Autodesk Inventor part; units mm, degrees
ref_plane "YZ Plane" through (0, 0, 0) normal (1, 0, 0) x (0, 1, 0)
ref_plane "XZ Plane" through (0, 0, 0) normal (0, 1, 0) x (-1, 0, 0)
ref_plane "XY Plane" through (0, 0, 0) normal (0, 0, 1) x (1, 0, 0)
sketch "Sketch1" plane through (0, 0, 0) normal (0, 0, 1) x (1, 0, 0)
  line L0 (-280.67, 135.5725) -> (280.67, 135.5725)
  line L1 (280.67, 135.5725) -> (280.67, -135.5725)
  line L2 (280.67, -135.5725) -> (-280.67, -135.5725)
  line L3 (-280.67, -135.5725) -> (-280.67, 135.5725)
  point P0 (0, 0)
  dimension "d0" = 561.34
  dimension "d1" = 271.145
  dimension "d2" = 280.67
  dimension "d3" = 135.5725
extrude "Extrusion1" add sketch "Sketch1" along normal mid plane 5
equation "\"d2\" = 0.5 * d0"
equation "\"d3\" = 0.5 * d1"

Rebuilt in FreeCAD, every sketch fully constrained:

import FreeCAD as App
import Part
import Sketcher
from FreeCAD import Vector
Q = App.Units.Quantity

doc = App.newDocument("Part")
params = doc.addObject("Spreadsheet::Sheet", "Params")
for row, (alias, value) in enumerate([
    ("sketch1_width", "22.1 in"),
    ("sketch1_height", "10.675 in"),
    ("pad1_length", "5 mm"),
], start=1):
    params.set(f"A{row}", alias)
    params.set(f"B{row}", "=" + value)
    params.setAlias(f"B{row}", alias)

body = doc.addObject("PartDesign::Body", "Body")

sketch1 = doc.addObject("Sketcher::SketchObject", "Sketch")
body.addObject(sketch1)
sketch1.AttachmentSupport = (doc.XY_Plane, [""])
sketch1.MapMode = "FlatFace"
sketch1.addGeometry(Part.LineSegment(Vector(281, 136, 0), Vector(-281, 136, 0)), False)
sketch1.addGeometry(Part.LineSegment(Vector(-281, 136, 0), Vector(-281, -136, 0)), False)
sketch1.addGeometry(Part.LineSegment(Vector(-281, -136, 0), Vector(281, -136, 0)), False)
sketch1.addGeometry(Part.LineSegment(Vector(281, -136, 0), Vector(281, 136, 0)), False)
sketch1.addConstraint(Sketcher.Constraint("Coincident", 0, 2, 1, 1))
sketch1.addConstraint(Sketcher.Constraint("Coincident", 1, 2, 2, 1))
sketch1.addConstraint(Sketcher.Constraint("Coincident", 2, 2, 3, 1))
sketch1.addConstraint(Sketcher.Constraint("Coincident", 3, 2, 0, 1))
sketch1.addConstraint(Sketcher.Constraint("Horizontal", 0))
sketch1.addConstraint(Sketcher.Constraint("Vertical", 1))
sketch1.addConstraint(Sketcher.Constraint("Horizontal", 2))
sketch1.addConstraint(Sketcher.Constraint("Vertical", 3))
sketch1.addConstraint(Sketcher.Constraint("Symmetric", 0, 2, 2, 2, -1, 1))
sketch1.addConstraint(Sketcher.Constraint("DistanceX", 0, 2, 0, 1, Q("22.1 in")))
sketch1.addConstraint(Sketcher.Constraint("DistanceY", 1, 2, 1, 1, Q("10.675 in")))
sketch1.setExpression("Constraints[9]", "Params.sketch1_width")
sketch1.setExpression("Constraints[10]", "Params.sketch1_height")
pad1 = doc.addObject("PartDesign::Pad", "Pad")
body.addObject(pad1)
pad1.Profile = sketch1
pad1.setExpression("Length", "Params.pad1_length")
pad1.Midplane = True

doc.recompute()
